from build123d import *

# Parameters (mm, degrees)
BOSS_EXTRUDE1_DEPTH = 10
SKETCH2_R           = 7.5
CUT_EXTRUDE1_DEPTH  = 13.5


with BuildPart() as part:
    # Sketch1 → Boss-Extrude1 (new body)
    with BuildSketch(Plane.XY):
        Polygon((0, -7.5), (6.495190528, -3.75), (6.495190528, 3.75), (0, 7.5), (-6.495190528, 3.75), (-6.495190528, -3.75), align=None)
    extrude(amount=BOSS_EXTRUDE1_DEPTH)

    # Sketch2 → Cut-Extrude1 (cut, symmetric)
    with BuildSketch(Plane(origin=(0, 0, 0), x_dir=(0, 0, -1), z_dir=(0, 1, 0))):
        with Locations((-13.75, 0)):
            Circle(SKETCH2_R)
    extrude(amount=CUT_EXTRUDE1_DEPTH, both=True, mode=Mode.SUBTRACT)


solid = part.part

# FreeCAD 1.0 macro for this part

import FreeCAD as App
import Part
import Sketcher

V = App.Vector
Q = App.Units.Quantity

doc = App.newDocument("Part")
params = doc.addObject("Spreadsheet::Sheet", "Params")
for row, (alias, value) in enumerate([
    ("sketch1_height", "7.5 mm"),
    ("pad1_length", "10 mm"),
    ("sketch2_diameter", "15 mm"),
    ("pocket1_length", "27 mm"),
], start=1):
    params.set(f"A{row}", alias)
    params.set(f"B{row}", "=" + value)
    params.setAlias(f"B{row}", alias)

body = doc.addObject("PartDesign::Body", "Body")

# Sketch on XY plane
sketch1 = body.newObject("Sketcher::SketchObject", "Sketch")
sketch1.AttachmentSupport = (doc.getObject("XY_Plane"), [""])
sketch1.MapMode = "FlatFace"
sketch1.addGeometry(Part.LineSegment(V(0, -7.5, 0), V(6.495191, -3.75, 0)), False)
sketch1.addGeometry(Part.LineSegment(V(6.495191, -3.75, 0), V(6.495191, 3.75, 0)), False)
sketch1.addGeometry(Part.LineSegment(V(6.495191, 3.75, 0), V(0, 7.5, 0)), False)
sketch1.addGeometry(Part.LineSegment(V(0, 7.5, 0), V(-6.495191, 3.75, 0)), False)
sketch1.addGeometry(Part.LineSegment(V(-6.495191, 3.75, 0), V(-6.495191, -3.75, 0)), False)
sketch1.addGeometry(Part.LineSegment(V(-6.495191, -3.75, 0), V(0, -7.5, 0)), False)
sketch1.addConstraint(Sketcher.Constraint("Coincident", 0, 2, 1, 1))
sketch1.addConstraint(Sketcher.Constraint("Coincident", 1, 2, 2, 1))
sketch1.addConstraint(Sketcher.Constraint("Coincident", 2, 2, 3, 1))
sketch1.addConstraint(Sketcher.Constraint("Coincident", 3, 2, 4, 1))
sketch1.addConstraint(Sketcher.Constraint("Coincident", 4, 2, 5, 1))
sketch1.addConstraint(Sketcher.Constraint("Coincident", 5, 2, 0, 1))
sketch1.addConstraint(Sketcher.Constraint("Vertical", 1))
sketch1.addConstraint(Sketcher.Constraint("Vertical", 4))
sketch1.addConstraint(Sketcher.Constraint("Symmetric", 0, 2, 3, 2, -1, 1))
sketch1.addConstraint(Sketcher.Constraint("Symmetric", 2, 2, 5, 2, -1, 1))
sketch1.addConstraint(Sketcher.Constraint("PointOnObject", 2, 2, -2))
sketch1.addConstraint(Sketcher.Constraint("Parallel", 2, 5))
sketch1.addConstraint(Sketcher.Constraint("Horizontal", 1, 2, 3, 2))
sketch1.addConstraint(Sketcher.Constraint("Angle", 0, Q("30 deg")))
sketch1.addConstraint(Sketcher.Constraint("DistanceY", 1, 1, 1, 2, Q("7.5 mm")))
sketch1.addConstraint(Sketcher.Constraint("DistanceY", 5, 2, 2, 2, Q("15 mm")))
sketch1.setExpression("Constraints[14]", "Params.sketch1_height")
pad1 = body.newObject("PartDesign::Pad", "Pad")
pad1.Profile = sketch1
pad1.setExpression("Length", "Params.pad1_length")

# Sketch on XZ plane
sketch2 = body.newObject("Sketcher::SketchObject", "Sketch001")
sketch2.AttachmentSupport = (doc.getObject("XZ_Plane"), [""])
sketch2.MapMode = "FlatFace"
sketch2.addGeometry(Part.Circle(V(0, 13.75, 0), V(0, 0, 1), 7.5), False)
sketch2.addConstraint(Sketcher.Constraint("PointOnObject", 0, 3, -2))
sketch2.addConstraint(Sketcher.Constraint("Diameter", 0, Q("15 mm")))
sketch2.addConstraint(Sketcher.Constraint("DistanceY", -1, 1, 0, 3, Q("13.75 mm")))
sketch2.setExpression("Constraints[1]", "Params.sketch2_diameter")
pocket1 = body.newObject("PartDesign::Pocket", "Pocket")
pocket1.Profile = sketch2
pocket1.setExpression("Length", "Params.pocket1_length")
pocket1.Midplane = True

doc.recompute()
